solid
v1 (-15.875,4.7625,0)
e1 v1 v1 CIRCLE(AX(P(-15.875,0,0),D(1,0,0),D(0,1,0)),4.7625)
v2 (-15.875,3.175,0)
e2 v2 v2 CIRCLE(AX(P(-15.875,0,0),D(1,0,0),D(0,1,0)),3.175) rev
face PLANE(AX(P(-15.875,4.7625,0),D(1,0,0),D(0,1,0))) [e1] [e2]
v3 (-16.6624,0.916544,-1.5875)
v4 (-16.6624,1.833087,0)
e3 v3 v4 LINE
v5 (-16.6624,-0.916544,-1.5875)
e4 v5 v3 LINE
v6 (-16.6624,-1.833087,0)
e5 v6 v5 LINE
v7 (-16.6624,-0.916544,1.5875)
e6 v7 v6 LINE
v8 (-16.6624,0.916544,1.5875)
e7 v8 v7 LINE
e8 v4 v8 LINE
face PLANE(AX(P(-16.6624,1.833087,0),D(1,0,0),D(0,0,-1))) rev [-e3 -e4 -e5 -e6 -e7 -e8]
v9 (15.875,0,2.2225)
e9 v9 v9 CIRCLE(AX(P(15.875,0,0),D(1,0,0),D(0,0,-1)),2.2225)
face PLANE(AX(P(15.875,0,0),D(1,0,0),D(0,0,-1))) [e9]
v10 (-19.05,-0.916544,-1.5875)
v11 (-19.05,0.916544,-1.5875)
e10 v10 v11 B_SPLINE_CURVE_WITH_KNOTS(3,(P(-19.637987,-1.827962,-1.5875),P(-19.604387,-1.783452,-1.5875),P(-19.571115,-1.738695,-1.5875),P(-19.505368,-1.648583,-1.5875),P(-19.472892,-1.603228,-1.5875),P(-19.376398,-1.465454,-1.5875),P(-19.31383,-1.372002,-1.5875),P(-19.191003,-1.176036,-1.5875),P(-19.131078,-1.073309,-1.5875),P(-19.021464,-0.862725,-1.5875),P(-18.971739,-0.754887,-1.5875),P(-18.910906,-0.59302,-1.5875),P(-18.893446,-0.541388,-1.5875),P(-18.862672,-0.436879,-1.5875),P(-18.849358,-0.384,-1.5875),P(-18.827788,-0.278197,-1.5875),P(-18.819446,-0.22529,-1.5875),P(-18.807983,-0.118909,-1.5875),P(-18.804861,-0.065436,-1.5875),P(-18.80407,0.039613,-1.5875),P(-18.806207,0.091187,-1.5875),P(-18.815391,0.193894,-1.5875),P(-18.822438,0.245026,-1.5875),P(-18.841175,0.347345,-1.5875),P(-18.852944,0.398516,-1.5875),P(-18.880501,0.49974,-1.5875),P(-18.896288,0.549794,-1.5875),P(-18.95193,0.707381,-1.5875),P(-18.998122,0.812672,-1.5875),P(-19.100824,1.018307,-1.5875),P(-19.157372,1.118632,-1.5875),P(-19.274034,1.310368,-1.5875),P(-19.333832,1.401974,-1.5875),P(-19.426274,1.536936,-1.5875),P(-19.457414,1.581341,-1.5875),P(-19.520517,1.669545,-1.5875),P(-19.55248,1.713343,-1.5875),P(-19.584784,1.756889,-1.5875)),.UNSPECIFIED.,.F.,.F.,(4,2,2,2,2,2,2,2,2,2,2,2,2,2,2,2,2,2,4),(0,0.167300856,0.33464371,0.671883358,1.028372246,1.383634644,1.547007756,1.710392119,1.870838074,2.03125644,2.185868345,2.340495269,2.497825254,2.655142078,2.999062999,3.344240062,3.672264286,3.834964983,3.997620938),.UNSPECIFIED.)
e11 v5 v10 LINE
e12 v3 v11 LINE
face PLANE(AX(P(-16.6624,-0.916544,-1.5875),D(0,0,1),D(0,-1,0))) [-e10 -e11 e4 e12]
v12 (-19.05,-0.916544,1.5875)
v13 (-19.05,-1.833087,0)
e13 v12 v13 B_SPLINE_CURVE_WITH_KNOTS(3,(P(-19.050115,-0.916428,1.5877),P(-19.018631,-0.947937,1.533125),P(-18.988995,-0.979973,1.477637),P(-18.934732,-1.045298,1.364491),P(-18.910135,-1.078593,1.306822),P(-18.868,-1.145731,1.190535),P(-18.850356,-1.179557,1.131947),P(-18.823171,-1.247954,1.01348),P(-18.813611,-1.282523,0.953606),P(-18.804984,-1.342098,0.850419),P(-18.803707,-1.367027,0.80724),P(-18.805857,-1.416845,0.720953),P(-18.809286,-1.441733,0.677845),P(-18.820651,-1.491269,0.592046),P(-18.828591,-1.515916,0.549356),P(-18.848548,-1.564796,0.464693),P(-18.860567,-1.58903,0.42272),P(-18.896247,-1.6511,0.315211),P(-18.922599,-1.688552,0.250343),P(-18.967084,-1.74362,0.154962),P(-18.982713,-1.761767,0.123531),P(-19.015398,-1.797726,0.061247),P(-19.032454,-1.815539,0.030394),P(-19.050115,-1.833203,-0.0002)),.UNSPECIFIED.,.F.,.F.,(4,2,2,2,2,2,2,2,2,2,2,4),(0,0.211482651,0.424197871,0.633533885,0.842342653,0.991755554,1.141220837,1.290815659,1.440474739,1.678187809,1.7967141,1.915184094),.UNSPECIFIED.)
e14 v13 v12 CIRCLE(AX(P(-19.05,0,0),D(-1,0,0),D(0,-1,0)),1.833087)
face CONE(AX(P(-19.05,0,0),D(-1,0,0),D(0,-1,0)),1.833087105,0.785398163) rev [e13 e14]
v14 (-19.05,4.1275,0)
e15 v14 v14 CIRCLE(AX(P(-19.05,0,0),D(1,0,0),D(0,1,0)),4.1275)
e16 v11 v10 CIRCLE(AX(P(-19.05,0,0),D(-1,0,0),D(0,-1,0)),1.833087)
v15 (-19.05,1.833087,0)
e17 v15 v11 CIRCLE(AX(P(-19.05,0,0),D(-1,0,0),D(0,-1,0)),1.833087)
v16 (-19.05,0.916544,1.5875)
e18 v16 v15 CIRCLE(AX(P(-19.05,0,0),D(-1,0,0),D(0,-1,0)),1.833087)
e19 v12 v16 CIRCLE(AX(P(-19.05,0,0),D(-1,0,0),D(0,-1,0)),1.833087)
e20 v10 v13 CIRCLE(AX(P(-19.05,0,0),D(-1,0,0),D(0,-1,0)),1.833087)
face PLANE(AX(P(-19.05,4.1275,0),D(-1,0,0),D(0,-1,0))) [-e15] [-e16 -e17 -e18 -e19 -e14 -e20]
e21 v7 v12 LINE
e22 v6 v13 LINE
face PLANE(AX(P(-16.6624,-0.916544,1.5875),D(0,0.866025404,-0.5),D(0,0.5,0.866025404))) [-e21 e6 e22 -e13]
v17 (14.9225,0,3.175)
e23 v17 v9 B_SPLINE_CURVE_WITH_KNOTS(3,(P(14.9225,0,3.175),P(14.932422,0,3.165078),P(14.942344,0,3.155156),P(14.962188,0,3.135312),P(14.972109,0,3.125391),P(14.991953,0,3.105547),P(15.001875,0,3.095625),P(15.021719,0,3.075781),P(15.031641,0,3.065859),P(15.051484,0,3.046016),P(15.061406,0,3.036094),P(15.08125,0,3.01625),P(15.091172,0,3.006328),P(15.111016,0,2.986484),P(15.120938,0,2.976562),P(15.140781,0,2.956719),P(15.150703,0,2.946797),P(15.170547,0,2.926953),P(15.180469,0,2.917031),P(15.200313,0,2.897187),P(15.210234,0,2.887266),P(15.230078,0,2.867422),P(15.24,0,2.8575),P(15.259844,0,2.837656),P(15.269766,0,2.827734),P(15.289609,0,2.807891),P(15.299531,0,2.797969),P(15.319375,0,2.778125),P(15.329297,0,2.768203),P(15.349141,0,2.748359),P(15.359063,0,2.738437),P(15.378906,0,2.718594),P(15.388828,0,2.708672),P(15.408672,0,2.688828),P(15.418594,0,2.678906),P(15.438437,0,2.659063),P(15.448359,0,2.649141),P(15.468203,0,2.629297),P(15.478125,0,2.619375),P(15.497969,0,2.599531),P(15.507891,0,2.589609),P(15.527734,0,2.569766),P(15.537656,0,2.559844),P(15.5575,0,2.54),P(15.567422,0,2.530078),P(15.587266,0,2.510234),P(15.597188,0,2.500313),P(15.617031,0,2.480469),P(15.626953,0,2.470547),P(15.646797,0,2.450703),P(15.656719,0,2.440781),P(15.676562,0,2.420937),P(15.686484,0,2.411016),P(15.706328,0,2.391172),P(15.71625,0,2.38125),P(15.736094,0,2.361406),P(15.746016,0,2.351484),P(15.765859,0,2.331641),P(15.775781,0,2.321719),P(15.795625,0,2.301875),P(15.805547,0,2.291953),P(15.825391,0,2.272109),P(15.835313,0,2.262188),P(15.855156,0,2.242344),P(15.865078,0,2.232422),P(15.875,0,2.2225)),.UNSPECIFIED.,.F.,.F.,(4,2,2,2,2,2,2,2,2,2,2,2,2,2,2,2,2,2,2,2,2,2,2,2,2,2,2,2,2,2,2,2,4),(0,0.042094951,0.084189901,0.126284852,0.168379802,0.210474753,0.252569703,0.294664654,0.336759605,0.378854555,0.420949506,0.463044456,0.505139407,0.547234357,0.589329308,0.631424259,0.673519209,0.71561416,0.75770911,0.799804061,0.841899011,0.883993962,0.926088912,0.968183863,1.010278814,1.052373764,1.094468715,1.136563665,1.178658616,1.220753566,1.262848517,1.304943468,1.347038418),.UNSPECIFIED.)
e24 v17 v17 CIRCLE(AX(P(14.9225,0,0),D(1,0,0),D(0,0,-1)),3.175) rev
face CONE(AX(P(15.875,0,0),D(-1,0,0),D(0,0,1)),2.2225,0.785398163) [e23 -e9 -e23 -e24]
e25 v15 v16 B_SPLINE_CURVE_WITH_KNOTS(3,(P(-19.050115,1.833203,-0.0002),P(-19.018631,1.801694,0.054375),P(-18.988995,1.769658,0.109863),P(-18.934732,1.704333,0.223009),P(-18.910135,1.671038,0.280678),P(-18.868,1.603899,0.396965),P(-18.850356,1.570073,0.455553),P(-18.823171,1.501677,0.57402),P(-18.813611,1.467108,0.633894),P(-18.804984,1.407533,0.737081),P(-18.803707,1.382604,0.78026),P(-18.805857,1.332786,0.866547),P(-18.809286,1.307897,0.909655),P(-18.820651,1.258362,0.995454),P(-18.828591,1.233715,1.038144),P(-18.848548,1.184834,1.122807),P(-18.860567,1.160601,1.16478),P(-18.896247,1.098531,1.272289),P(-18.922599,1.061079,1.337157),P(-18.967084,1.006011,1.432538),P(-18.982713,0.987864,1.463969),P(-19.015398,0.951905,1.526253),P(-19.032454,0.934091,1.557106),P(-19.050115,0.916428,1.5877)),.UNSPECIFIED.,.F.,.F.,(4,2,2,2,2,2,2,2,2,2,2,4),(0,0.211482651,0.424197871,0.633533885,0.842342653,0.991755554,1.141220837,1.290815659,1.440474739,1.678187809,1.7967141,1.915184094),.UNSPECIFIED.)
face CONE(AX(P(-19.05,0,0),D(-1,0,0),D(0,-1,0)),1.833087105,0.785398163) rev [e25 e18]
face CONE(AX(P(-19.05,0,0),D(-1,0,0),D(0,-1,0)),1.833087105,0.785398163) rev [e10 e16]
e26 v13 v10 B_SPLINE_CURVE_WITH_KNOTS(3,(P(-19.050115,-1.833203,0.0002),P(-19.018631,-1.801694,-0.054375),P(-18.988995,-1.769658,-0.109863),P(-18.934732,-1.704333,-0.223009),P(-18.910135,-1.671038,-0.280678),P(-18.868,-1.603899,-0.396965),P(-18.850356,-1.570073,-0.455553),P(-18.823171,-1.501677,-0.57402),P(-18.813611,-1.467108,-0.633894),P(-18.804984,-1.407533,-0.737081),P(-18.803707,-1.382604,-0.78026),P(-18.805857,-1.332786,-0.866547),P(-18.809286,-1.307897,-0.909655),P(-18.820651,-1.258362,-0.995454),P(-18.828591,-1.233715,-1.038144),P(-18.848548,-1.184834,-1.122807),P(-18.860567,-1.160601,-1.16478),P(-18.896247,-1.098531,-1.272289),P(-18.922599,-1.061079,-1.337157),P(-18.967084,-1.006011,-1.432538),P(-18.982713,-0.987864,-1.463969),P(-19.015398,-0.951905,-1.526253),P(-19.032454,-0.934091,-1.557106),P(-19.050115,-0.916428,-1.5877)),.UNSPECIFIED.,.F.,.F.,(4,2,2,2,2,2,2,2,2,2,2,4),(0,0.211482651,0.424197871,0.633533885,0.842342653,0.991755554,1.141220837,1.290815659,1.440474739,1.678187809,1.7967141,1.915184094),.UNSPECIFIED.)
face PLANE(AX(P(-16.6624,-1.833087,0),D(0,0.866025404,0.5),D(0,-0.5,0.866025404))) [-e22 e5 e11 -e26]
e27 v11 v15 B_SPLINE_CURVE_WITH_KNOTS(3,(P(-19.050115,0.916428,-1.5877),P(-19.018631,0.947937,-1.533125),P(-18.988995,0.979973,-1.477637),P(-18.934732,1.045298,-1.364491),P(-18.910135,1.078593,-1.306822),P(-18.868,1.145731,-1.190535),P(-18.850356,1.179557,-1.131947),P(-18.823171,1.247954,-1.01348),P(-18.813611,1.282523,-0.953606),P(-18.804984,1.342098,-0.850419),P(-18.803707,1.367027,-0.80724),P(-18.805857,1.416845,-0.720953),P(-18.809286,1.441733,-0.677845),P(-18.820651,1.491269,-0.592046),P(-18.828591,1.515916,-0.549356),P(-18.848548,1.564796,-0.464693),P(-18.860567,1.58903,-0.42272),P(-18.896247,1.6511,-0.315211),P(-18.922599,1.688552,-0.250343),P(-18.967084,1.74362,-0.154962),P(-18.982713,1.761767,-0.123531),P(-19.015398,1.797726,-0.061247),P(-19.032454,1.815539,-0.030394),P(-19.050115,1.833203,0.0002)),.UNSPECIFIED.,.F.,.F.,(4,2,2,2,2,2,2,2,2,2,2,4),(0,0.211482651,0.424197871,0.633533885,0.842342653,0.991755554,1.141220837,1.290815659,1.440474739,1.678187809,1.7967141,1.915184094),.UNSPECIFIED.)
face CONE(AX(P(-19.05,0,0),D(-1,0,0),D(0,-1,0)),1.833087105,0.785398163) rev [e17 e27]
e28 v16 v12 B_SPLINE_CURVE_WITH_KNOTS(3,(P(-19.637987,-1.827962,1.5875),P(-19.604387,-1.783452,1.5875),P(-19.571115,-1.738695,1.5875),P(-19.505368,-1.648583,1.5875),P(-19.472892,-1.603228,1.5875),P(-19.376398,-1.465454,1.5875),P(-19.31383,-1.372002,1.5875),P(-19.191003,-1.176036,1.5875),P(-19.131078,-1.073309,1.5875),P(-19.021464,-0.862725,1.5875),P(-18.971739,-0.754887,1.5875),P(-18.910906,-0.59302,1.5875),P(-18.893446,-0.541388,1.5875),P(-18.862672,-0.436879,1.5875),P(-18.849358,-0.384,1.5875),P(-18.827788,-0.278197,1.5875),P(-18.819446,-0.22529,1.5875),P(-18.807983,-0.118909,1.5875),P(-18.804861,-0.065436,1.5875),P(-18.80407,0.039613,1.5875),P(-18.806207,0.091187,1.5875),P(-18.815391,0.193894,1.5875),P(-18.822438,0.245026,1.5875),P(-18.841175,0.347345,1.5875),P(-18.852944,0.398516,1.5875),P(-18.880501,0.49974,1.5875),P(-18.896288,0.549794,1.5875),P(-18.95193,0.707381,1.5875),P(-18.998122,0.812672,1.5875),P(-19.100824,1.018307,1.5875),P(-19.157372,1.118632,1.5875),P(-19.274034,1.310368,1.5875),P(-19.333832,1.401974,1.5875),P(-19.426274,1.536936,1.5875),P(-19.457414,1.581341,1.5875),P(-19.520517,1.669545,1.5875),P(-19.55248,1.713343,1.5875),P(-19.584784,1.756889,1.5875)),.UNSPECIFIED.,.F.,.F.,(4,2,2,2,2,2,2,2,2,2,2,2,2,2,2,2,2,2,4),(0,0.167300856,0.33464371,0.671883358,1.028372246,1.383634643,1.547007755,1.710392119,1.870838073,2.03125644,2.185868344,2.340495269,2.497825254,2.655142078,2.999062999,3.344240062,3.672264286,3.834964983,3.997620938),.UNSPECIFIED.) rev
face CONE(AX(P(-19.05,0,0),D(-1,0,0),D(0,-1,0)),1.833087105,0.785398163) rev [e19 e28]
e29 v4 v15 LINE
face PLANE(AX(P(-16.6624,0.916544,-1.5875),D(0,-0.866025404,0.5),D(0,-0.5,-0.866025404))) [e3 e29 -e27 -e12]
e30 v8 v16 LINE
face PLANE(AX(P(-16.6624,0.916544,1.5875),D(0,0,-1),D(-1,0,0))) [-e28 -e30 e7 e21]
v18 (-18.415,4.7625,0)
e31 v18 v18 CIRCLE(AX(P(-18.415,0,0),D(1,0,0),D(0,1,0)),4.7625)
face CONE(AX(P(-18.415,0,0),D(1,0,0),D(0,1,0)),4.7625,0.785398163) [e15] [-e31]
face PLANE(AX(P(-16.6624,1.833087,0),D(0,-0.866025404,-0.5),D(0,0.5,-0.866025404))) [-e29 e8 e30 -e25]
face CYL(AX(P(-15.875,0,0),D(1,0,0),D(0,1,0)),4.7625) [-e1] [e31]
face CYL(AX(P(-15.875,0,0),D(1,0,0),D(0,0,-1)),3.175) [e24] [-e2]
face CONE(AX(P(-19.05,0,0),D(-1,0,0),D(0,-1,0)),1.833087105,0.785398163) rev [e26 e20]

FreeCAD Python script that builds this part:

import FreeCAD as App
import Part
import Sketcher
from FreeCAD import Vector
Q = App.Units.Quantity


def edges_at(feature, points):
    """Names of the edges that pass closest to the given points."""
    edges = feature.Shape.Edges
    near = lambda p: min(range(len(edges)), key=lambda i: edges[i].distToShape(Part.Vertex(*p))[0])
    return sorted({f"Edge{near(p) + 1}" for p in points})


def add_polygon(sketch, points):
    """Adds a closed chain of lines whose ends are joined by coincident constraints."""
    first, n = sketch.GeometryCount, len(points)
    for a, b in zip(points, points[1:] + points[:1]):
        sketch.addGeometry(Part.LineSegment(App.Vector(*a, 0), App.Vector(*b, 0)), False)
    for i in range(n):
        sketch.addConstraint(Sketcher.Constraint("Coincident", first + i, 2, first + (i + 1) % n, 1))

doc = App.newDocument("Part")
body = doc.addObject("PartDesign::Body", "Body")

sketch1 = body.newObject("Sketcher::SketchObject", "Sketch")
sketch1.AttachmentSupport = (doc.getObject("YZ_Plane"), [""])
sketch1.MapMode = "FlatFace"
sketch1.AttachmentOffset = App.Placement(Vector(0, 0, 0.625 * 25.4), App.Rotation())
sketch1.addGeometry(Part.Circle(Vector(0, 0, 0), Vector(0, 0, 1), 3.2), False)
sketch1.addConstraint([
    Sketcher.Constraint("Coincident", 0, 3, -1, 1),
    Sketcher.Constraint("Diameter", 0, Q("0.25 in")),
])
pad1 = body.newObject("PartDesign::Pad", "Pad")
pad1.Profile = sketch1
pad1.Length = Q("1.25 in")
pad1.Reversed = True
doc.recompute()

chamfer = body.newObject("PartDesign::Chamfer", "Chamfer")
chamfer.Base = (pad1, edges_at(pad1, [(15.875, 0, 3.175)]))
chamfer.Size = Q("0.0375 in")

sketch2 = body.newObject("Sketcher::SketchObject", "Sketch001")
sketch2.AttachmentSupport = (doc.getObject("XY_Plane"), [""])
sketch2.MapMode = "FlatFace"
add_polygon(sketch2, [(-18.4, 4.8), (-19.1, 4.1), (-19.1, 0), (-15.9, 0), (-15.9, 4.8)])
sketch2.addConstraint([
    Sketcher.Constraint("Vertical", 1),
    Sketcher.Constraint("Horizontal", 2),
    Sketcher.Constraint("Vertical", 3),
    Sketcher.Constraint("Horizontal", 4),
    Sketcher.Constraint("PointOnObject", 1, 2, -1),
    Sketcher.Constraint("DistanceX", 4, 2, 4, 1, Q("0.1 in")),
    Sketcher.Constraint("Angle", 0, Q("-135 deg")),
    Sketcher.Constraint("DistanceX", 2, 1, 2, 2, Q("0.125 in")),
    Sketcher.Constraint("DistanceY", 3, 1, 3, 2, Q("0.1875 in")),
    Sketcher.Constraint("DistanceX", 0, 2, -1, 1, Q("0.75 in")),
])
revolution = body.newObject("PartDesign::Revolution", "Revolution")
revolution.Profile = sketch2
revolution.ReferenceAxis = (sketch2, ["H_Axis"])
revolution.Angle = 360

sketch3 = body.newObject("Sketcher::SketchObject", "Sketch002")
sketch3.AttachmentSupport = (doc.getObject("YZ_Plane"), [""])
sketch3.MapMode = "FlatFace"
sketch3.AttachmentOffset = App.Placement(Vector(0, 0, -0.75 * 25.4), App.Rotation())
add_polygon(sketch3, [(1.8, 0), (0.9, 1.6), (-0.9, 1.6), (-1.8, 0), (-0.9, -1.6), (0.9, -1.6)])
sketch3.addConstraint([
    Sketcher.Constraint("Horizontal", 1),
    Sketcher.Constraint("Horizontal", 4),
    Sketcher.Constraint("Symmetric", 0, 2, 3, 2, -1, 1),
    Sketcher.Constraint("Symmetric", 2, 2, 5, 2, -1, 1),
    Sketcher.Constraint("PointOnObject", 2, 2, -1),
    Sketcher.Constraint("Parallel", 2, 5),
    Sketcher.Constraint("Vertical", 1, 2, 3, 2),
    Sketcher.Constraint("Angle", 0, Q("120 deg")),
    Sketcher.Constraint("DistanceY", -1, 1, 0, 2, Q("0.0625 in")),
    Sketcher.Constraint("DistanceX", 1, 2, 1, 1, Q("1.833087 mm")),
])
pocket1 = body.newObject("PartDesign::Pocket", "Pocket")
pocket1.Profile = sketch3
pocket1.Length = Q("0.094 in")
pocket1.Reversed = True

sketch4 = body.newObject("Sketcher::SketchObject", "Sketch003")
sketch4.AttachmentSupport = (doc.getObject("XZ_Plane"), [""])
sketch4.MapMode = "FlatFace"
add_polygon(sketch4, [(-19.1, 0), (-19.1, 1.8), (-17.2, 0)])
sketch4.addConstraint([
    Sketcher.Constraint("Vertical", 0),
    Sketcher.Constraint("Horizontal", 2),
    Sketcher.Constraint("PointOnObject", 1, 2, -1),
    Sketcher.Constraint("Equal", 2, 0),
    Sketcher.Constraint("DistanceX", 0, 2, -1, 1, Q("0.75 in")),
    Sketcher.Constraint("DistanceX", 2, 2, 2, 1, Q("1.833087 mm")),
])
groove = body.newObject("PartDesign::Groove", "Groove")
groove.Profile = sketch4
groove.ReferenceAxis = (sketch4, ["H_Axis"])
groove.Angle = 360

doc.recompute()
